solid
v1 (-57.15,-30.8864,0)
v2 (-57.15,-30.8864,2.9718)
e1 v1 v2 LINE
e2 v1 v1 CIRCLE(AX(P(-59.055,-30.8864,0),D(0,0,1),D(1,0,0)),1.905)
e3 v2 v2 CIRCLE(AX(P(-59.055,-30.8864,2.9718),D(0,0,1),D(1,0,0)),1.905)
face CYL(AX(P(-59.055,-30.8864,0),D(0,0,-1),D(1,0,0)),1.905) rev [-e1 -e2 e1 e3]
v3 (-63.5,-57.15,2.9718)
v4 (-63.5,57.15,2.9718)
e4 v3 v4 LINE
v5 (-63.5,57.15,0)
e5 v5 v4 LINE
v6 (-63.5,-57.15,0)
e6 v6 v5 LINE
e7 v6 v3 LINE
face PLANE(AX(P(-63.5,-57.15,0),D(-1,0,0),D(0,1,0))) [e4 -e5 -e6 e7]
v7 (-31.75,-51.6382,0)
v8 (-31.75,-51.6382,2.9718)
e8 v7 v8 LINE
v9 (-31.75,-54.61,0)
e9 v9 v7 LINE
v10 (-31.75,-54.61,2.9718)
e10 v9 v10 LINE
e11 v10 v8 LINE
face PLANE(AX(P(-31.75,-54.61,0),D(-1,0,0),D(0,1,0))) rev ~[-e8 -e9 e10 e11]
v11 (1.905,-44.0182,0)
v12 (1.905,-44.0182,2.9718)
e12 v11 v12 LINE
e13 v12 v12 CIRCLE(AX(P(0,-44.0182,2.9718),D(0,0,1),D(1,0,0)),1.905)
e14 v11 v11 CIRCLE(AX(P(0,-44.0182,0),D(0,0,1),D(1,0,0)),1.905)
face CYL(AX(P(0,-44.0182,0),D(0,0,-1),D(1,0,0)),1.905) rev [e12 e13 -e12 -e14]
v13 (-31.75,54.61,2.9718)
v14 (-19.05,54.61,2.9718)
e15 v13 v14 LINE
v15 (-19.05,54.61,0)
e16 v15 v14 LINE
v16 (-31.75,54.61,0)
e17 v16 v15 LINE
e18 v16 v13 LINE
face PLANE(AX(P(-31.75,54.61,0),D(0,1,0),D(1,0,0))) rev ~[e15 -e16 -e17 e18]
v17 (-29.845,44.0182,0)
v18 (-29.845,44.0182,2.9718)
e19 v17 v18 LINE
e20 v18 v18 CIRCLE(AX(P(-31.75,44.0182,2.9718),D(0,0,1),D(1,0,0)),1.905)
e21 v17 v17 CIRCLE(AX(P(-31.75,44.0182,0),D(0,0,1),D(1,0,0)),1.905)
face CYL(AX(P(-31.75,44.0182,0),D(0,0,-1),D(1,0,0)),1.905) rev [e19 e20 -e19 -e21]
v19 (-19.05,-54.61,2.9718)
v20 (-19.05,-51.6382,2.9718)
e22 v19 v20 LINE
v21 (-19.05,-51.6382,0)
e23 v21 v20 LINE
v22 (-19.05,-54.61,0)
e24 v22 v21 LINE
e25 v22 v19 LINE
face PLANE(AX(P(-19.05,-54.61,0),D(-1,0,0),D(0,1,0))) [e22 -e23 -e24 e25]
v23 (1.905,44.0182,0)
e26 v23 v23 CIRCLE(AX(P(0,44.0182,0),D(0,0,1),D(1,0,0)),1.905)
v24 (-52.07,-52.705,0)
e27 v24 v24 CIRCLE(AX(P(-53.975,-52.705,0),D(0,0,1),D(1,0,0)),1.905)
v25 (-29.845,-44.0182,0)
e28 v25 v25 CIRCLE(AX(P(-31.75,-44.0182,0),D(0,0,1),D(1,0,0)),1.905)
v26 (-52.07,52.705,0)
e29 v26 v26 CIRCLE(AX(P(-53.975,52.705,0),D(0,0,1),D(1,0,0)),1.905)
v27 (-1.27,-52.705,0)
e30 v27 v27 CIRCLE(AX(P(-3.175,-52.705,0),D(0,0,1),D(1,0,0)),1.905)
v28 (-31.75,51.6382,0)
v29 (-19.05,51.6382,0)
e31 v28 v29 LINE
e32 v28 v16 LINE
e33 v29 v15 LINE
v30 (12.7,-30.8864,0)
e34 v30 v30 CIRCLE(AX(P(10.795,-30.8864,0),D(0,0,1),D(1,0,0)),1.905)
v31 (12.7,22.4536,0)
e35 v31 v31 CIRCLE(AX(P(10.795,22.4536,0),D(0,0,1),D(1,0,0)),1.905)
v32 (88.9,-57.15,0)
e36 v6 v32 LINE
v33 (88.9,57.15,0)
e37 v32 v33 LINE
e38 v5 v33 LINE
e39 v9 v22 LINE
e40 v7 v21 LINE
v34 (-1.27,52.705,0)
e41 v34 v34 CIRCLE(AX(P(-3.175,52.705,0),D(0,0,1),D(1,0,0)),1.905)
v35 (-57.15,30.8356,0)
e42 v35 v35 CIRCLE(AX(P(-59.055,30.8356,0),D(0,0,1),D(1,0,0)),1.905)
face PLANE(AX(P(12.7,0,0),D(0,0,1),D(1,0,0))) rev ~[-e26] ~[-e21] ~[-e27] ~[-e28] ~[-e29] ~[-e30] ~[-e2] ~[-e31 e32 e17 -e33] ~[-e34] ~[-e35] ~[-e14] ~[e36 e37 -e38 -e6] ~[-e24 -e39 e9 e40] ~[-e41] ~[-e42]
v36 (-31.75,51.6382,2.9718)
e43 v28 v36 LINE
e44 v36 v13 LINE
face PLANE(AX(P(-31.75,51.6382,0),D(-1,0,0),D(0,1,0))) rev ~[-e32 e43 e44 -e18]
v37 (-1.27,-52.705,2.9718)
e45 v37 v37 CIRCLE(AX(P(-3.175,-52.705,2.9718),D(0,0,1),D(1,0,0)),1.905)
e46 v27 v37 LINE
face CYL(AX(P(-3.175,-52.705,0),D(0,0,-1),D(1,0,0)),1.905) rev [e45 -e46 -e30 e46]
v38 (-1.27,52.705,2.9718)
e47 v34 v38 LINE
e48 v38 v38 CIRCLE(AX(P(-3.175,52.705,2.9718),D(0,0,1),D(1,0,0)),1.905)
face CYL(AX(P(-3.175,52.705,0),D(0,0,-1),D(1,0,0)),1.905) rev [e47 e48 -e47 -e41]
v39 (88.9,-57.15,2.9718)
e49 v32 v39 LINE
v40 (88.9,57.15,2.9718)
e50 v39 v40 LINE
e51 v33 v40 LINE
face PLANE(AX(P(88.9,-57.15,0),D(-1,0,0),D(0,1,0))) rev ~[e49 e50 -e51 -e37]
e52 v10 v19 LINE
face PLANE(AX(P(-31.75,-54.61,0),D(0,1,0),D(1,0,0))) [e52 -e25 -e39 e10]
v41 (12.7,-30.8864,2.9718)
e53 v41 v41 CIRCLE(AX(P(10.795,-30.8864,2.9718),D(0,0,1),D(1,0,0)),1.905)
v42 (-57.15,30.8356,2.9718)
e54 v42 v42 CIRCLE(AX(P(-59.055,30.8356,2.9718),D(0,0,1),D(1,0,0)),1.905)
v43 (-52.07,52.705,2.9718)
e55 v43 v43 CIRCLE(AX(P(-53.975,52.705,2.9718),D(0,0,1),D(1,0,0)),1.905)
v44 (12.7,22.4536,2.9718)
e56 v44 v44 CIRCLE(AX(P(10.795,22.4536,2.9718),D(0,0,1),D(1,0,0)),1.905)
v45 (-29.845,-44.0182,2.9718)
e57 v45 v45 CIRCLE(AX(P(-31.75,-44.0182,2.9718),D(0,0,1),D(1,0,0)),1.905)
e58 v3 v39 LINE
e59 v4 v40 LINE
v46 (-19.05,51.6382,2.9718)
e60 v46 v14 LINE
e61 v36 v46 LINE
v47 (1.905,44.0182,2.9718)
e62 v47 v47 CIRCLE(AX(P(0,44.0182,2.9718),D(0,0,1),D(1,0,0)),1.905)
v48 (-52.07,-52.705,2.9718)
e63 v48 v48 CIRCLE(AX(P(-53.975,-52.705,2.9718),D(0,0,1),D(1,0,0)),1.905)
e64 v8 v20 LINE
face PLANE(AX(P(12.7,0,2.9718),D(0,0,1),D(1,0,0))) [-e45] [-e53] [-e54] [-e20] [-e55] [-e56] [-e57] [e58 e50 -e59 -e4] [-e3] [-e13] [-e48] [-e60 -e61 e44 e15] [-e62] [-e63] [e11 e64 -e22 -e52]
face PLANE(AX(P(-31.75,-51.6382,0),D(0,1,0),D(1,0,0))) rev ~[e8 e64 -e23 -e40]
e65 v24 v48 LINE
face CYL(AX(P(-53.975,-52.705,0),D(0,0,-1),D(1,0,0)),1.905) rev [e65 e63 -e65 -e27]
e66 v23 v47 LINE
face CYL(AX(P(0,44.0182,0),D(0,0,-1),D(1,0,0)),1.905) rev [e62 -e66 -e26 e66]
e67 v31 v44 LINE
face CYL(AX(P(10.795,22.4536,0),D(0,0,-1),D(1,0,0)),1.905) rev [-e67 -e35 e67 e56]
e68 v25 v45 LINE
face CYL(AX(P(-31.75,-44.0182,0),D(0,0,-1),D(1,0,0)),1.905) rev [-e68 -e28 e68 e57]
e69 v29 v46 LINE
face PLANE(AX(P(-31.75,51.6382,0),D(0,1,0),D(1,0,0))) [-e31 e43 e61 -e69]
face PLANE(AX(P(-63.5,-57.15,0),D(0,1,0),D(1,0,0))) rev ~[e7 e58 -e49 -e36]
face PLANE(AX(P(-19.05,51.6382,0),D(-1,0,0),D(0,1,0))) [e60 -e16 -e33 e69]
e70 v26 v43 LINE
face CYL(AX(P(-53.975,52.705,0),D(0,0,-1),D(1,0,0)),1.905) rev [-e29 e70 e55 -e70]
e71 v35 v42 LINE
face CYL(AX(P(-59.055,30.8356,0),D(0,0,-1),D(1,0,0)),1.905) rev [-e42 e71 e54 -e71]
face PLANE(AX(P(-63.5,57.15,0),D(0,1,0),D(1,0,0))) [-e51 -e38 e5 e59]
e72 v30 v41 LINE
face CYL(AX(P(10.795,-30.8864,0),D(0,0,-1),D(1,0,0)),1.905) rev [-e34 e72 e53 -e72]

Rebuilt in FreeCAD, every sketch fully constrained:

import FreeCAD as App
import Part
import Sketcher
Q = App.Units.Quantity

doc = App.newDocument("Part")
body = doc.addObject("PartDesign::Body", "Body")

sketch1 = body.newObject("Sketcher::SketchObject", "Sketch")
sketch1.AttachmentSupport = (doc.getObject("XY_Plane"), [""])
sketch1.MapMode = "FlatFace"
sketch1.addGeometry([
    Part.LineSegment(App.Vector(-63.5, 57.1, 0), App.Vector(-63.5, -57.1, 0)),
    Part.LineSegment(App.Vector(-63.5, -57.1, 0), App.Vector(88.9, -57.1, 0)),
    Part.LineSegment(App.Vector(88.9, -57.1, 0), App.Vector(88.9, 57.1, 0)),
    Part.LineSegment(App.Vector(88.9, 57.1, 0), App.Vector(-63.5, 57.1, 0)),
    Part.Circle(App.Vector(-54, -52.7, 0), App.Vector(0, 0, 1), 1.9),
    Part.Circle(App.Vector(-59.1, -30.9, 0), App.Vector(0, 0, 1), 1.9),
    Part.LineSegment(App.Vector(-19.1, -54.6, 0), App.Vector(-31.8, -54.6, 0)),
    Part.LineSegment(App.Vector(-31.8, -54.6, 0), App.Vector(-31.8, -51.6, 0)),
    Part.LineSegment(App.Vector(-31.8, -51.6, 0), App.Vector(-19.1, -51.6, 0)),
    Part.LineSegment(App.Vector(-19.1, -51.6, 0), App.Vector(-19.1, -54.6, 0)),
    Part.Circle(App.Vector(-31.8, -44, 0), App.Vector(0, 0, 1), 1.9),
    Part.Circle(App.Vector(-3.2, -52.7, 0), App.Vector(0, 0, 1), 1.9),
    Part.Circle(App.Vector(0, -44, 0), App.Vector(0, 0, 1), 1.9),
    Part.Circle(App.Vector(10.8, -30.9, 0), App.Vector(0, 0, 1), 1.9),
    Part.Circle(App.Vector(-59.1, 30.8, 0), App.Vector(0, 0, 1), 1.9),
    Part.Circle(App.Vector(-54, 52.7, 0), App.Vector(0, 0, 1), 1.9),
    Part.Circle(App.Vector(-31.8, 44, 0), App.Vector(0, 0, 1), 1.9),
    Part.LineSegment(App.Vector(-19.1, 51.6, 0), App.Vector(-31.8, 51.6, 0)),
    Part.LineSegment(App.Vector(-31.8, 51.6, 0), App.Vector(-31.8, 54.6, 0)),
    Part.LineSegment(App.Vector(-31.8, 54.6, 0), App.Vector(-19.1, 54.6, 0)),
    Part.LineSegment(App.Vector(-19.1, 54.6, 0), App.Vector(-19.1, 51.6, 0)),
    Part.Circle(App.Vector(10.8, 22.5, 0), App.Vector(0, 0, 1), 1.9),
    Part.Circle(App.Vector(0, 44, 0), App.Vector(0, 0, 1), 1.9),
    Part.Circle(App.Vector(-3.2, 52.7, 0), App.Vector(0, 0, 1), 1.9),
], False)
sketch1.addConstraint([
    Sketcher.Constraint("Coincident", 0, 2, 1, 1),
    Sketcher.Constraint("Coincident", 1, 2, 2, 1),
    Sketcher.Constraint("Coincident", 2, 2, 3, 1),
    Sketcher.Constraint("Coincident", 3, 2, 0, 1),
    Sketcher.Constraint("Coincident", 6, 2, 7, 1),
    Sketcher.Constraint("Coincident", 7, 2, 8, 1),
    Sketcher.Constraint("Coincident", 8, 2, 9, 1),
    Sketcher.Constraint("Coincident", 9, 2, 6, 1),
    Sketcher.Constraint("Coincident", 17, 2, 18, 1),
    Sketcher.Constraint("Coincident", 18, 2, 19, 1),
    Sketcher.Constraint("Coincident", 19, 2, 20, 1),
    Sketcher.Constraint("Coincident", 20, 2, 17, 1),
    Sketcher.Constraint("Vertical", 0),
    Sketcher.Constraint("Horizontal", 1),
    Sketcher.Constraint("Vertical", 2),
    Sketcher.Constraint("Horizontal", 3),
    Sketcher.Constraint("Horizontal", 6),
    Sketcher.Constraint("Vertical", 7),
    Sketcher.Constraint("Horizontal", 8),
    Sketcher.Constraint("Vertical", 9),
    Sketcher.Constraint("Horizontal", 17),
    Sketcher.Constraint("Vertical", 18),
    Sketcher.Constraint("Horizontal", 19),
    Sketcher.Constraint("Vertical", 20),
    Sketcher.Constraint("Equal", 4, 5),
    Sketcher.Constraint("Equal", 5, 10),
    Sketcher.Constraint("Equal", 10, 11),
    Sketcher.Constraint("Equal", 11, 12),
    Sketcher.Constraint("Equal", 12, 13),
    Sketcher.Constraint("Equal", 13, 14),
    Sketcher.Constraint("Equal", 14, 15),
    Sketcher.Constraint("Equal", 15, 16),
    Sketcher.Constraint("Equal", 16, 21),
    Sketcher.Constraint("Equal", 21, 22),
    Sketcher.Constraint("Equal", 22, 23),
    Sketcher.Constraint("Symmetric", 12, 3, 22, 3, -1, 1),
    Sketcher.Constraint("Symmetric", 4, 3, 15, 3, -1),
    Sketcher.Constraint("Symmetric", 10, 3, 16, 3, -1),
    Sketcher.Constraint("Symmetric", 11, 3, 23, 3, -1),
    Sketcher.Constraint("Symmetric", 7, 2, 17, 2, -1),
    Sketcher.Constraint("Symmetric", 9, 2, 19, 2, -1),
    Sketcher.Constraint("PointOnObject", 12, 3, -2),
    Sketcher.Constraint("Horizontal", 4, 3, 11, 3),
    Sketcher.Constraint("Horizontal", 10, 3, 12, 3),
    Sketcher.Constraint("Horizontal", 5, 3, 13, 3),
    Sketcher.Constraint("Vertical", 5, 3, 14, 3),
    Sketcher.Constraint("Vertical", 13, 3, 21, 3),
    Sketcher.Constraint("Vertical", 16, 3, 6, 2),
    Sketcher.Constraint("Diameter", 4, Q("0.15 in")),
    Sketcher.Constraint("DistanceX", 1, 1, 1, 2, Q("6 in")),
    Sketcher.Constraint("DistanceX", 6, 2, 6, 1, Q("0.5 in")),
    Sketcher.Constraint("DistanceY", 0, 2, 0, 1, Q("4.5 in")),
    Sketcher.Constraint("DistanceX", 4, 3, 11, 3, Q("2 in")),
    Sketcher.Constraint("DistanceX", 0, 2, -1, 1, Q("2.5 in")),
    Sketcher.Constraint("DistanceX", 5, 3, 4, 3, Q("0.2 in")),
    Sketcher.Constraint("DistanceY", 13, 3, 21, 3, Q("2.1 in")),
    Sketcher.Constraint("DistanceY", 0, 2, 6, 2, Q("0.1 in")),
    Sketcher.Constraint("DistanceY", 7, 2, 10, 3, Q("0.3 in")),
    Sketcher.Constraint("DistanceY", 18, 2, 3, 2, Q("0.1 in")),
    Sketcher.Constraint("DistanceY", 7, 1, 7, 2, Q("0.117 in")),
    Sketcher.Constraint("DistanceX", 10, 3, -1, 1, Q("1.25 in")),
    Sketcher.Constraint("DistanceX", 11, 3, 13, 3, Q("0.55 in")),
    Sketcher.Constraint("DistanceY", 5, 3, 14, 3, Q("2.43 in")),
    Sketcher.Constraint("DistanceY", 4, 3, 15, 3, Q("4.15 in")),
    Sketcher.Constraint("DistanceX", 4, 3, -1, 1, Q("2.125 in")),
    Sketcher.Constraint("DistanceY", 5, 3, -1, 1, Q("1.216 in")),
])
pad1 = body.newObject("PartDesign::Pad", "Pad")
pad1.Profile = sketch1
pad1.Length = Q("0.117 in")

doc.recompute()
